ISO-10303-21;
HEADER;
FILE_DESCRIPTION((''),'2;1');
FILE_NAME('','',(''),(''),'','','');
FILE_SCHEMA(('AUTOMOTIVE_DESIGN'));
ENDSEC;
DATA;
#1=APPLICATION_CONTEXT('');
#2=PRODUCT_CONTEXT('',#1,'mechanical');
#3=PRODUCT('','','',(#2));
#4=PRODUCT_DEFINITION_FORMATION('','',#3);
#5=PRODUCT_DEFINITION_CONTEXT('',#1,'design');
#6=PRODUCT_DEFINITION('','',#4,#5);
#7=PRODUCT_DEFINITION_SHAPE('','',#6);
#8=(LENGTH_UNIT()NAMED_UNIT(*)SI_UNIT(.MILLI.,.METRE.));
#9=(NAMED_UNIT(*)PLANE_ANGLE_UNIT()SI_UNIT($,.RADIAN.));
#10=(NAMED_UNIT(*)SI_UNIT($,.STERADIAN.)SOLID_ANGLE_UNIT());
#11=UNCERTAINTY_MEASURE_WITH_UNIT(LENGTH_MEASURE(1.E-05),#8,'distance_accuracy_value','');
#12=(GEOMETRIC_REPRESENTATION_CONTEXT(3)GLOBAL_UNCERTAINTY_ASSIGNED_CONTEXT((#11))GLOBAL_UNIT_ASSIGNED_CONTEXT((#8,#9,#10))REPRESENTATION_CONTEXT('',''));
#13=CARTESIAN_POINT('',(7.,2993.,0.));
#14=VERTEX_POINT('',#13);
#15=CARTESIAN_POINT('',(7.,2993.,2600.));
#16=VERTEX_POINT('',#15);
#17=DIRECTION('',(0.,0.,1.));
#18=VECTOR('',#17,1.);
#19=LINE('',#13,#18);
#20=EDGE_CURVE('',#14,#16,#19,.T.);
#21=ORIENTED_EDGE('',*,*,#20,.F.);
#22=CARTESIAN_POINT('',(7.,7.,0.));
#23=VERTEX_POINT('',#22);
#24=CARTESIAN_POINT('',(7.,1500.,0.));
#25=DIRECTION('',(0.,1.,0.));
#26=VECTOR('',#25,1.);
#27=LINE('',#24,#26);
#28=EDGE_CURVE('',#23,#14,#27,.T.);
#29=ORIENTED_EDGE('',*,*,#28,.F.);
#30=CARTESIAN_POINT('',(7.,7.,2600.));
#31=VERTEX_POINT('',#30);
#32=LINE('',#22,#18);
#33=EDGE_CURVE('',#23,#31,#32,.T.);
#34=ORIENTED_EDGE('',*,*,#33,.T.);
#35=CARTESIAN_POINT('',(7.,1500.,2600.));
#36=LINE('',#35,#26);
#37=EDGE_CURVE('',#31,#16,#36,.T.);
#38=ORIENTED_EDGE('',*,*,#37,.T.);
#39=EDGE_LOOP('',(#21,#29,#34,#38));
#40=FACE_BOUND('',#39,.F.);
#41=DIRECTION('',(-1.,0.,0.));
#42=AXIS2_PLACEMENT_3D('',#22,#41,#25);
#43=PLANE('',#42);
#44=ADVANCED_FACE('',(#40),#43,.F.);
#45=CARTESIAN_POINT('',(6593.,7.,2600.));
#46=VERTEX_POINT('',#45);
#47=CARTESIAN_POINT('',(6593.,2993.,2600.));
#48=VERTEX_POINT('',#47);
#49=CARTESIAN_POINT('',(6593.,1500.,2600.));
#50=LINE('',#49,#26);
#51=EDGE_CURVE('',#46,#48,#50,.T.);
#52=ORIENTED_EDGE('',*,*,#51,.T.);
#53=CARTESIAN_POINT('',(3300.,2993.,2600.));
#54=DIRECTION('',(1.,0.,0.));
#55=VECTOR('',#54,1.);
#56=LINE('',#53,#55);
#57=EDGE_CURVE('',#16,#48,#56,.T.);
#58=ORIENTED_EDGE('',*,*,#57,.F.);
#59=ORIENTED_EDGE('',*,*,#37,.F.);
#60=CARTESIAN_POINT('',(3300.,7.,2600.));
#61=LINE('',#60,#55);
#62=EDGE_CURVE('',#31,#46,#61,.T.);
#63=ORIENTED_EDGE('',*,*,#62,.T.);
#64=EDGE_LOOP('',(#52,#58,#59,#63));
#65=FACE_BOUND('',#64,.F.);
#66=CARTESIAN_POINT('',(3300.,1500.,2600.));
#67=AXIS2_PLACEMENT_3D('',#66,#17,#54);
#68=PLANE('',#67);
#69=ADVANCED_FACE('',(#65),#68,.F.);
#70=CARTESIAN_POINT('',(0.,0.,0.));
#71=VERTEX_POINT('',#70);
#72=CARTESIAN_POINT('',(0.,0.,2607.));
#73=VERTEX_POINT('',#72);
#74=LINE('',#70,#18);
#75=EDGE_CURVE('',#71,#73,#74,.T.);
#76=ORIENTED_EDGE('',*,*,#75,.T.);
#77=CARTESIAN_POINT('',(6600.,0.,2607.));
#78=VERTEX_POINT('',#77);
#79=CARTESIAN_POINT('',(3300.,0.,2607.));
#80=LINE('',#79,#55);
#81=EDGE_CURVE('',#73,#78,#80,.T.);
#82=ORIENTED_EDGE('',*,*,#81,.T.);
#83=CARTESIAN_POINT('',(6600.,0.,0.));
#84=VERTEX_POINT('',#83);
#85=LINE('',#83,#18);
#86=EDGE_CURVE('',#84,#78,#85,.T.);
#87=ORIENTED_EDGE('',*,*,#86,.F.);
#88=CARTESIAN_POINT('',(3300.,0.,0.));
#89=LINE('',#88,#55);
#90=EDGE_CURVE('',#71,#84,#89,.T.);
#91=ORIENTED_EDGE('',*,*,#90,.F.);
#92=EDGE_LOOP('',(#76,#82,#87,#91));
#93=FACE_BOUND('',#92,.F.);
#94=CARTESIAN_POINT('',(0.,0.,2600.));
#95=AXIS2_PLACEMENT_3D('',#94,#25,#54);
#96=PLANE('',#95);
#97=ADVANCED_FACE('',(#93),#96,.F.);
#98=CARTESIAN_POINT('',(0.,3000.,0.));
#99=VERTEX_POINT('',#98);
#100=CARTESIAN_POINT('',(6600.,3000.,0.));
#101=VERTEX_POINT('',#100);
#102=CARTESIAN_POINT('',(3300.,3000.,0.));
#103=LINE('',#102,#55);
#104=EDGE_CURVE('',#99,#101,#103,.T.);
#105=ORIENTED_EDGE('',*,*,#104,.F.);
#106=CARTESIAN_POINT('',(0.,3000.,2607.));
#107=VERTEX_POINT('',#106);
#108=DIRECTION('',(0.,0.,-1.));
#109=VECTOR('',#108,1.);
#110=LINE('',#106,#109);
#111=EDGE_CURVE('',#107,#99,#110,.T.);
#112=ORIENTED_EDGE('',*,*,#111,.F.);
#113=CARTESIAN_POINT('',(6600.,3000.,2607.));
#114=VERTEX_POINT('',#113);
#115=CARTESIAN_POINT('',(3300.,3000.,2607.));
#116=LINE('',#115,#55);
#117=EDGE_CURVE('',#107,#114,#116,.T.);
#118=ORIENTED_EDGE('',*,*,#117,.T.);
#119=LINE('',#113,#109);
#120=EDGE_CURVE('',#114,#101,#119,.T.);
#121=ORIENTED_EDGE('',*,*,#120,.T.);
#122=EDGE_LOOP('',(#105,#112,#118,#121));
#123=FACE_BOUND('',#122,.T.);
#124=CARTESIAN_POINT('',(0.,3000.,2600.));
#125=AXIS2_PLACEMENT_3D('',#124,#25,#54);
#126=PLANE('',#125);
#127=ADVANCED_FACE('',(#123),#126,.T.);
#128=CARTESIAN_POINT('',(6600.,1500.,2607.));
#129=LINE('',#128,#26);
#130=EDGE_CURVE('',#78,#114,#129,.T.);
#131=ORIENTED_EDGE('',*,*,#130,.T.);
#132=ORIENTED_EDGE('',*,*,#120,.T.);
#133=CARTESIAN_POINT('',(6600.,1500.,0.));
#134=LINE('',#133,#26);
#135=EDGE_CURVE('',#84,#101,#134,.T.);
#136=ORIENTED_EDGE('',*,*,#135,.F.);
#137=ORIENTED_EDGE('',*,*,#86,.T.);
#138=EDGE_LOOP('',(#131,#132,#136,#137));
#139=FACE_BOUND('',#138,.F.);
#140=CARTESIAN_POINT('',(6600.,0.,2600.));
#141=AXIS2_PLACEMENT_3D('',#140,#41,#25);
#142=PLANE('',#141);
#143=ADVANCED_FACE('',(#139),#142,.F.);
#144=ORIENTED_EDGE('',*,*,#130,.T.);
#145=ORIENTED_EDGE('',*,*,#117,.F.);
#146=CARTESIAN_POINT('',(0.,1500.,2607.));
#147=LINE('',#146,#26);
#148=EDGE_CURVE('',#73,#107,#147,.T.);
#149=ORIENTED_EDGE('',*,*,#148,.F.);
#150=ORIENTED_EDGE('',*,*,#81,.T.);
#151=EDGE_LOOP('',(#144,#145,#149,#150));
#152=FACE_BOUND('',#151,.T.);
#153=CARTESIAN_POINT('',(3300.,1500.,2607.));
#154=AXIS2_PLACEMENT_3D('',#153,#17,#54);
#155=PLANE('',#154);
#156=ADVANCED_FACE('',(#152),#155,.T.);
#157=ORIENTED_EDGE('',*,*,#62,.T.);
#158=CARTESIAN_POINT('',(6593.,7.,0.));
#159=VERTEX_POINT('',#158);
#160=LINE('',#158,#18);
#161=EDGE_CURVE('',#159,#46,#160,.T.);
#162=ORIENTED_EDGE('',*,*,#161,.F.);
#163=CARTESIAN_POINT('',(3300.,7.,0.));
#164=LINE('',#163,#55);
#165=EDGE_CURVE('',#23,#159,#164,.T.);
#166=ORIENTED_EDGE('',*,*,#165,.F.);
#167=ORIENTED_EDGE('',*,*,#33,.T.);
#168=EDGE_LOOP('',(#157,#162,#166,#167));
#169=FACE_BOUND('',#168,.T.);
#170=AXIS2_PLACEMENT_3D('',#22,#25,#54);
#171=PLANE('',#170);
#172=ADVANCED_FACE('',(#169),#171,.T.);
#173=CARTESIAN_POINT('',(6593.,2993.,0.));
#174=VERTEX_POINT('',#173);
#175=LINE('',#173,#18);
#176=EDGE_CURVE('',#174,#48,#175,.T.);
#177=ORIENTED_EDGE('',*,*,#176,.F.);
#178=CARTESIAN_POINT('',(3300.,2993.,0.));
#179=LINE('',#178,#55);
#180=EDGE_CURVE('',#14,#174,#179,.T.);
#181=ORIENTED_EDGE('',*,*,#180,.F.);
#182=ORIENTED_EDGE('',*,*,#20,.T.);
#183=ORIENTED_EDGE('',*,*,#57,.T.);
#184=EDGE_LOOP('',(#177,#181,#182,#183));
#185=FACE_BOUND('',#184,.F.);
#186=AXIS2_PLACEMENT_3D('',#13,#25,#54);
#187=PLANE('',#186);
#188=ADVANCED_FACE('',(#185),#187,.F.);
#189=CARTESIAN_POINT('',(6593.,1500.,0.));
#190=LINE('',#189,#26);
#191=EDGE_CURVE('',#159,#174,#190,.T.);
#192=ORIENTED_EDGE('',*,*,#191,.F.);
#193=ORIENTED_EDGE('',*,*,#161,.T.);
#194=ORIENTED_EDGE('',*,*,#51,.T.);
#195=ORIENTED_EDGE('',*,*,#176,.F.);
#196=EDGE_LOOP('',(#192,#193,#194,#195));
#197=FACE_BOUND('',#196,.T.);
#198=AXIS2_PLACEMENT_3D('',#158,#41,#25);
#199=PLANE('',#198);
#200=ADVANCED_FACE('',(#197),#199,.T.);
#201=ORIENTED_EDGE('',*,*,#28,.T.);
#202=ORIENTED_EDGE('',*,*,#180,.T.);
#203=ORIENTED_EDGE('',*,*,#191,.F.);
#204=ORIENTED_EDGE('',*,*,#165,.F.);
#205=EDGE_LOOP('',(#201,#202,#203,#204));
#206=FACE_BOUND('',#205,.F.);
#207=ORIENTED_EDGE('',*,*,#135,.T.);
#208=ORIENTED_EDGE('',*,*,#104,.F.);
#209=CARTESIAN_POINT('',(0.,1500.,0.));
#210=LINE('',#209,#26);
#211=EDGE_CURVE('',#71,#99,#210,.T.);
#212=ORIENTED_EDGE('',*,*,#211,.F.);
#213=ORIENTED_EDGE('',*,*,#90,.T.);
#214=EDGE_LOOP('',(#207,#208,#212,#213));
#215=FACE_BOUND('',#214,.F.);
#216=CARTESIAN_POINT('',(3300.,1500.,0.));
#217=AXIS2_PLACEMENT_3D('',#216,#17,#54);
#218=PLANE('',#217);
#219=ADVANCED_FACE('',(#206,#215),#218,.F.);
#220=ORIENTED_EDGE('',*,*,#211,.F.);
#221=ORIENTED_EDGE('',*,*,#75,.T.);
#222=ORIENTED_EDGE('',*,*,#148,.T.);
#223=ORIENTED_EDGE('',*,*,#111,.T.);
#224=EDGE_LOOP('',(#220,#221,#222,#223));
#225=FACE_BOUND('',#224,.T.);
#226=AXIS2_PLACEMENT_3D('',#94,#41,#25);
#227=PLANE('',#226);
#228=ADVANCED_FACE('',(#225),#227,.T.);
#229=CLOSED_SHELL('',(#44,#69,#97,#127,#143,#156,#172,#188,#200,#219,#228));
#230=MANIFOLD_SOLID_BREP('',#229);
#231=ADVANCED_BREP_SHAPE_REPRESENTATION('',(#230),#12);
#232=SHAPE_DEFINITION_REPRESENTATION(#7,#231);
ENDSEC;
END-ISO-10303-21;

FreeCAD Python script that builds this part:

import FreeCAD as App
import Part
import Sketcher
Q = App.Units.Quantity

doc = App.newDocument("Part")
body = doc.addObject("PartDesign::Body", "Body")

# Sketch on XY plane
sketch1 = doc.addObject("Sketcher::SketchObject", "Sketch")
body.addObject(sketch1)
sketch1.AttachmentSupport = (doc.XY_Plane, [""])
sketch1.MapMode = "FlatFace"
sketch1.addGeometry([
    Part.LineSegment(App.Vector(0, 3000, 0), App.Vector(0, 0, 0)),  # 0
    Part.LineSegment(App.Vector(0, 0, 0), App.Vector(6600, 0, 0)),  # 1
    Part.LineSegment(App.Vector(6600, 0, 0), App.Vector(6600, 3000, 0)),  # 2
    Part.LineSegment(App.Vector(6600, 3000, 0), App.Vector(0, 3000, 0)),  # 3
    Part.LineSegment(App.Vector(6593, 7, 0), App.Vector(7, 7, 0)),  # 4
    Part.LineSegment(App.Vector(7, 7, 0), App.Vector(7, 2993, 0)),  # 5
    Part.LineSegment(App.Vector(7, 2993, 0), App.Vector(6593, 2993, 0)),  # 6
    Part.LineSegment(App.Vector(6593, 2993, 0), App.Vector(6593, 7, 0)),  # 7
], False)
sketch1.addConstraint([
    Sketcher.Constraint("Coincident", 0, 2, 1, 1),
    Sketcher.Constraint("Coincident", 1, 2, 2, 1),
    Sketcher.Constraint("Coincident", 2, 2, 3, 1),
    Sketcher.Constraint("Coincident", 3, 2, 0, 1),
    Sketcher.Constraint("Coincident", 4, 2, 5, 1),
    Sketcher.Constraint("Coincident", 5, 2, 6, 1),
    Sketcher.Constraint("Coincident", 6, 2, 7, 1),
    Sketcher.Constraint("Coincident", 7, 2, 4, 1),
    Sketcher.Constraint("Vertical", 0),
    Sketcher.Constraint("Horizontal", 1),
    Sketcher.Constraint("Vertical", 2),
    Sketcher.Constraint("Horizontal", 3),
    Sketcher.Constraint("Horizontal", 4),
    Sketcher.Constraint("Vertical", 5),
    Sketcher.Constraint("Horizontal", 6),
    Sketcher.Constraint("Vertical", 7),
    Sketcher.Constraint("Coincident", 0, 2, -1, 1),
    Sketcher.Constraint("DistanceX", 1, 1, 1, 2, Q("6600 mm")),
    Sketcher.Constraint("DistanceX", 4, 2, 4, 1, Q("6586 mm")),
    Sketcher.Constraint("DistanceY", 0, 2, 0, 1, Q("3000 mm")),
    Sketcher.Constraint("DistanceY", 5, 1, 5, 2, Q("2986 mm")),
    Sketcher.Constraint("DistanceX", -1, 1, 4, 2, Q("7 mm")),
    Sketcher.Constraint("DistanceY", -1, 1, 4, 2, Q("7 mm")),
])
pad1 = doc.addObject("PartDesign::Pad", "Pad")
body.addObject(pad1)
pad1.Profile = sketch1
pad1.Length = 2600

# Sketch on XY plane
sketch2 = doc.addObject("Sketcher::SketchObject", "Sketch001")
body.addObject(sketch2)
sketch2.AttachmentSupport = (doc.XY_Plane, [""])
sketch2.MapMode = "FlatFace"
sketch2.AttachmentOffset = App.Placement(App.Vector(0, 0, 2600), App.Rotation())
sketch2.addGeometry([
    Part.LineSegment(App.Vector(0, 3000, 0), App.Vector(0, 0, 0)),
    Part.LineSegment(App.Vector(0, 0, 0), App.Vector(6600, 0, 0)),
    Part.LineSegment(App.Vector(6600, 0, 0), App.Vector(6600, 3000, 0)),
    Part.LineSegment(App.Vector(6600, 3000, 0), App.Vector(0, 3000, 0)),
], False)
sketch2.addConstraint([
    Sketcher.Constraint("Coincident", 0, 2, 1, 1),
    Sketcher.Constraint("Coincident", 1, 2, 2, 1),
    Sketcher.Constraint("Coincident", 2, 2, 3, 1),
    Sketcher.Constraint("Coincident", 3, 2, 0, 1),
    Sketcher.Constraint("Vertical", 0),
    Sketcher.Constraint("Horizontal", 1),
    Sketcher.Constraint("Vertical", 2),
    Sketcher.Constraint("Horizontal", 3),
    Sketcher.Constraint("Coincident", 0, 2, -1, 1),
    Sketcher.Constraint("DistanceX", 1, 1, 1, 2, Q("6600 mm")),
    Sketcher.Constraint("DistanceY", 0, 2, 0, 1, Q("3000 mm")),
])
pad2 = doc.addObject("PartDesign::Pad", "Pad001")
body.addObject(pad2)
pad2.Profile = sketch2
pad2.Length = 7

doc.recompute()
